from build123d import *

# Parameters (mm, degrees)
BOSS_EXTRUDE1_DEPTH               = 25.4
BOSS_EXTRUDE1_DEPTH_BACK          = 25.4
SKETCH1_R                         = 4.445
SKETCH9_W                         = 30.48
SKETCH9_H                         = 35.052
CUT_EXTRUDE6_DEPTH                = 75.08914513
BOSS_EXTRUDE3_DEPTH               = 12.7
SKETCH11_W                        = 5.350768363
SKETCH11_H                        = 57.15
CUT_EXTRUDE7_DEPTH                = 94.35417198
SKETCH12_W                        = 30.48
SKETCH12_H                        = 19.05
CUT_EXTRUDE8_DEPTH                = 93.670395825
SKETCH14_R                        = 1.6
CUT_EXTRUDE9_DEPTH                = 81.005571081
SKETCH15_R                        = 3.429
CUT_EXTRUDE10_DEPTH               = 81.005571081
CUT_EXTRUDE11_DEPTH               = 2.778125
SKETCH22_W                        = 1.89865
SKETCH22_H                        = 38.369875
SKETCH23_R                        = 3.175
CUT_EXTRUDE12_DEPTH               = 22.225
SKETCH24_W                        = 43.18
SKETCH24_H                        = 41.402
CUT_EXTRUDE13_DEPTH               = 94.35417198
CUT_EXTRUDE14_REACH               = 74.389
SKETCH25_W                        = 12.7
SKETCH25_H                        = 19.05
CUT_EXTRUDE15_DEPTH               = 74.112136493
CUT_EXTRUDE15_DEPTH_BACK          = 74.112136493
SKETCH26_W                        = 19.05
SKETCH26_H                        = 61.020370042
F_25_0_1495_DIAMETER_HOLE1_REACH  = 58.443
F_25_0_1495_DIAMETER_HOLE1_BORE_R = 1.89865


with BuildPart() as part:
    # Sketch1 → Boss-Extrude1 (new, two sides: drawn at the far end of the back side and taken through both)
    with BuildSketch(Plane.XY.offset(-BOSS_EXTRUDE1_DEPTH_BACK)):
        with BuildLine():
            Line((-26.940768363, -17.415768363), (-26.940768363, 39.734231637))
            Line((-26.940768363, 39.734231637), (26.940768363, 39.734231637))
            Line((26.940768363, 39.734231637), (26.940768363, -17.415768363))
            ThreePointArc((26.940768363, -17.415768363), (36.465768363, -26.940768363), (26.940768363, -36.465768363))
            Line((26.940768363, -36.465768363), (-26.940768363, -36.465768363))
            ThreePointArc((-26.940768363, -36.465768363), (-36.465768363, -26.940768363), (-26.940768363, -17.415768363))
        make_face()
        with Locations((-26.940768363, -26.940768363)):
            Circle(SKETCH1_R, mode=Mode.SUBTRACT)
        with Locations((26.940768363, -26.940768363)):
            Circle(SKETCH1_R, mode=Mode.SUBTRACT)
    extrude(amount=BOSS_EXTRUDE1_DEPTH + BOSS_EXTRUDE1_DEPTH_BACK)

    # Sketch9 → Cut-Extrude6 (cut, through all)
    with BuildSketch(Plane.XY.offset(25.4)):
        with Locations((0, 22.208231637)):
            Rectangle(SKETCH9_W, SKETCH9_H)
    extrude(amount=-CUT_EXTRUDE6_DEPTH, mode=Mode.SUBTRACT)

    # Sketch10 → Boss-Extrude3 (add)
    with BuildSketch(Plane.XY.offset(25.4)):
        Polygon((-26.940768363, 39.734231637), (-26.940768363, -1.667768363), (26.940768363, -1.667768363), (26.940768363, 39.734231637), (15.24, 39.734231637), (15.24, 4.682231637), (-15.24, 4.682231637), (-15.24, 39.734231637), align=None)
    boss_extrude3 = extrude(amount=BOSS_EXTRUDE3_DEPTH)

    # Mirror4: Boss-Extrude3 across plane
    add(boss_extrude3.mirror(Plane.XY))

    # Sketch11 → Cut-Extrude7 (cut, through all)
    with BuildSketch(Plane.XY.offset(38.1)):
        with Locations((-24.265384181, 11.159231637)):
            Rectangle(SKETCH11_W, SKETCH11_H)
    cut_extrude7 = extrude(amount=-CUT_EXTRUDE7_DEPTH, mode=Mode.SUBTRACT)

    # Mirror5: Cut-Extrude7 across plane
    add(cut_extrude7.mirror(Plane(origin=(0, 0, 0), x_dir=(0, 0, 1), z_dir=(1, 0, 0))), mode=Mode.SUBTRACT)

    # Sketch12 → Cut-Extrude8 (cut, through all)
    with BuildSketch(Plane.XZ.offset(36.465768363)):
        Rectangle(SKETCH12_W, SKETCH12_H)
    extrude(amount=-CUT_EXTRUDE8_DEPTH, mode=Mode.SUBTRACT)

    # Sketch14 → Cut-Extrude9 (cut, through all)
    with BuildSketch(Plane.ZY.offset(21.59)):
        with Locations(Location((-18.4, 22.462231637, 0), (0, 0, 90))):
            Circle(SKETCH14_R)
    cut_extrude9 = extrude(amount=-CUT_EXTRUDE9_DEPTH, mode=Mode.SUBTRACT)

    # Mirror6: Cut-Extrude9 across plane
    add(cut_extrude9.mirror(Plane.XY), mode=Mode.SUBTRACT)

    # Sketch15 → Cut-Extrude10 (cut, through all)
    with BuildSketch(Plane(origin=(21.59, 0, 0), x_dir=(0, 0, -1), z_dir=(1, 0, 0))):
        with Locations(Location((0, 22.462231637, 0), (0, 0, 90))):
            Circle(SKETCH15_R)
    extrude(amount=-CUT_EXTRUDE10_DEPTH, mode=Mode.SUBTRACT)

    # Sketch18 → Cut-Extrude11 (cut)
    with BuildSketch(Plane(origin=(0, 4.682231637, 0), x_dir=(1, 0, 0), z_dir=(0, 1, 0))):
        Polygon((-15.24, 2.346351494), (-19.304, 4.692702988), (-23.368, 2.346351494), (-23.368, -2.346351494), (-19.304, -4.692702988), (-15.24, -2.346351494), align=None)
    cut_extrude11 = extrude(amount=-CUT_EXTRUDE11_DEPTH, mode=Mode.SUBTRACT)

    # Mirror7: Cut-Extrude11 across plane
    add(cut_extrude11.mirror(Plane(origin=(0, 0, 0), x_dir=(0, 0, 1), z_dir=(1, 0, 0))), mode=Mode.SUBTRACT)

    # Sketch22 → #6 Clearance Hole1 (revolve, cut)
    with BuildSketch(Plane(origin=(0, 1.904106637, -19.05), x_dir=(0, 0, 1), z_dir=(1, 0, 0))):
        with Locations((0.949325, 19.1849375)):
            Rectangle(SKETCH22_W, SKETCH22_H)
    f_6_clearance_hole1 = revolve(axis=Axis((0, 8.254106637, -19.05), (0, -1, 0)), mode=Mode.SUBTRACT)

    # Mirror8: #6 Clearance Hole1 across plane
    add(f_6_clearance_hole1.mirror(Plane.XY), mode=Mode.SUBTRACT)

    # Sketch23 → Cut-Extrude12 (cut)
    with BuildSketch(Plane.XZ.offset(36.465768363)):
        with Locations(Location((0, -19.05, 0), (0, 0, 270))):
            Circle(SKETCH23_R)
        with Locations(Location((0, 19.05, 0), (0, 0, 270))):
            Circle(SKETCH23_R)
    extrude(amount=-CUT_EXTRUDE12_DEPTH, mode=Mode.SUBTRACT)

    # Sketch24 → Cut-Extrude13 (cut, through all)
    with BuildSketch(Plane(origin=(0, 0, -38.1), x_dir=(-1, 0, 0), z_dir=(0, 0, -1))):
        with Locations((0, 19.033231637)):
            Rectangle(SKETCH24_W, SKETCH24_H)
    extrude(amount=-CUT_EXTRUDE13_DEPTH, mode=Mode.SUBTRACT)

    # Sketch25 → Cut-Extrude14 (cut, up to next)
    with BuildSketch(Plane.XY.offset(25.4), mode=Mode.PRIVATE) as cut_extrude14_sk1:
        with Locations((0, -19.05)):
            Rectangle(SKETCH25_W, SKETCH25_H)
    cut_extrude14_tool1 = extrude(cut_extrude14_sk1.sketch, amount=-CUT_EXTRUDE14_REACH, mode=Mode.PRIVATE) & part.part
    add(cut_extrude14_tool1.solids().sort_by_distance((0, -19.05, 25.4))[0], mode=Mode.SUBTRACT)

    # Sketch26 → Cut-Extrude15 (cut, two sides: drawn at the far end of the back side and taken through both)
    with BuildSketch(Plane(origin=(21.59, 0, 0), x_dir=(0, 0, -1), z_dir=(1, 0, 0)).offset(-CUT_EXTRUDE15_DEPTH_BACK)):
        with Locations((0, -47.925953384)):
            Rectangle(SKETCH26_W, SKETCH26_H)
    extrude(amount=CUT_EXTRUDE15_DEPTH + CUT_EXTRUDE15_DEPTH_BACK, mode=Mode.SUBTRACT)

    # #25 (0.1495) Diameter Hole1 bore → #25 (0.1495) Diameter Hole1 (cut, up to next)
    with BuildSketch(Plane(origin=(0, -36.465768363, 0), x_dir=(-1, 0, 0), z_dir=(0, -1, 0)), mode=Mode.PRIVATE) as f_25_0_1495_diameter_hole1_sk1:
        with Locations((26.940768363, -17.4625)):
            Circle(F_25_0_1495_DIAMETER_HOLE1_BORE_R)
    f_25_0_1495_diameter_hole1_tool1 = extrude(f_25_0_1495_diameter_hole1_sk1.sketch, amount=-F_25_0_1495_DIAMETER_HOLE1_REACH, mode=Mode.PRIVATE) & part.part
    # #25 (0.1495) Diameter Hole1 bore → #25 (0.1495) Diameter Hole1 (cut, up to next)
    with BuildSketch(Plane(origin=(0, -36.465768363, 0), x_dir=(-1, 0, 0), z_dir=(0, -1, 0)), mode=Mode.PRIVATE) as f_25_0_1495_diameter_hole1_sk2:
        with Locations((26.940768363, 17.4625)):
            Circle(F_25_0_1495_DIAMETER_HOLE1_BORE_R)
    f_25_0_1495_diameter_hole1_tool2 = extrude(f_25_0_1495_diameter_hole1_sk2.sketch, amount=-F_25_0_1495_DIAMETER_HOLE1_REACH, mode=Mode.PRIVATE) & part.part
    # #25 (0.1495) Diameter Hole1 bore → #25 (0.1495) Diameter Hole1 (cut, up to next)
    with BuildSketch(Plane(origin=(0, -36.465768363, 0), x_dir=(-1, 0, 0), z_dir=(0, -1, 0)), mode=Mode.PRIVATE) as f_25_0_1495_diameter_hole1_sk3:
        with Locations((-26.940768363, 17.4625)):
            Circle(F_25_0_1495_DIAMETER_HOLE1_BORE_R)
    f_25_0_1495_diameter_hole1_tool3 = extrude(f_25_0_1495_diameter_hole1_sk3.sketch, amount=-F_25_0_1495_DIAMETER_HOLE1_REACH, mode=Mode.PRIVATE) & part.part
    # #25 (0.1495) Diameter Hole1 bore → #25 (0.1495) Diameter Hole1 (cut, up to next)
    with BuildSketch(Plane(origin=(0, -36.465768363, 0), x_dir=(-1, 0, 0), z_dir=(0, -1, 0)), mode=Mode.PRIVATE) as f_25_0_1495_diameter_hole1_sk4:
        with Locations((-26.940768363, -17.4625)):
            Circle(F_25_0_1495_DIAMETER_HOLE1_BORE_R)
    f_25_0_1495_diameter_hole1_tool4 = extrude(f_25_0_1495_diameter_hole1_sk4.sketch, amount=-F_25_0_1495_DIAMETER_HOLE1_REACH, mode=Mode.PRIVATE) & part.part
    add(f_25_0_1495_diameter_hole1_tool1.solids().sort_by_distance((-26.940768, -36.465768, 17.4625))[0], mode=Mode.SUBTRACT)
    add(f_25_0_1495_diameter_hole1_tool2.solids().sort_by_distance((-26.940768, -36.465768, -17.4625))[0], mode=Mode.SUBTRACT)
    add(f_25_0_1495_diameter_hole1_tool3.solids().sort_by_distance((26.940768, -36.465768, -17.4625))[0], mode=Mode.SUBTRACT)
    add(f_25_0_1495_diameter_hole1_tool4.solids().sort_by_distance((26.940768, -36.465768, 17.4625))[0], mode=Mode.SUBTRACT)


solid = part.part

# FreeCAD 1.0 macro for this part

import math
import FreeCAD as App
import Part
import Sketcher
Q = App.Units.Quantity

doc = App.newDocument("Part")
body = doc.addObject("PartDesign::Body", "Body")

# Sketch on XY plane
sketch1 = doc.addObject("Sketcher::SketchObject", "Sketch")
body.addObject(sketch1)
sketch1.AttachmentSupport = (doc.XY_Plane, [""])
sketch1.MapMode = "FlatFace"
sketch1.addGeometry(Part.LineSegment(App.Vector(-26.9, 39.7, 0), App.Vector(-26.9, -17.4, 0)), False)
sketch1.addGeometry(Part.ArcOfCircle(Part.Circle(App.Vector(-26.9, -26.9, 0), App.Vector(0, 0, 1), 9.5), math.radians(90), math.radians(270)), False)
sketch1.addGeometry(Part.LineSegment(App.Vector(-26.9, -36.5, 0), App.Vector(26.9, -36.5, 0)), False)
sketch1.addGeometry(Part.ArcOfCircle(Part.Circle(App.Vector(26.9, -26.9, 0), App.Vector(0, 0, 1), 9.5), math.radians(-90), math.radians(90)), False)
sketch1.addGeometry(Part.LineSegment(App.Vector(26.9, -17.4, 0), App.Vector(26.9, 39.7, 0)), False)
sketch1.addGeometry(Part.LineSegment(App.Vector(26.9, 39.7, 0), App.Vector(-26.9, 39.7, 0)), False)
sketch1.addGeometry(Part.Circle(App.Vector(26.9, -26.9, 0), App.Vector(0, 0, 1), 4.4), False)
sketch1.addGeometry(Part.Circle(App.Vector(-26.9, -26.9, 0), App.Vector(0, 0, 1), 4.4), False)
sketch1.addConstraint(Sketcher.Constraint("Coincident", 0, 2, 1, 1))
sketch1.addConstraint(Sketcher.Constraint("Tangent", 1, 2, 2, 1))
sketch1.addConstraint(Sketcher.Constraint("Tangent", 2, 2, 3, 1))
sketch1.addConstraint(Sketcher.Constraint("Coincident", 3, 2, 4, 1))
sketch1.addConstraint(Sketcher.Constraint("Coincident", 4, 2, 5, 1))
sketch1.addConstraint(Sketcher.Constraint("Coincident", 5, 2, 0, 1))
sketch1.addConstraint(Sketcher.Constraint("Vertical", 0))
sketch1.addConstraint(Sketcher.Constraint("Horizontal", 2))
sketch1.addConstraint(Sketcher.Constraint("Vertical", 4))
sketch1.addConstraint(Sketcher.Constraint("Horizontal", 5))
sketch1.addConstraint(Sketcher.Constraint("Coincident", 6, 3, 3, 3))
sketch1.addConstraint(Sketcher.Constraint("Coincident", 7, 3, 1, 3))
sketch1.addConstraint(Sketcher.Constraint("Equal", 1, 3))
sketch1.addConstraint(Sketcher.Constraint("Equal", 6, 7))
sketch1.addConstraint(Sketcher.Constraint("Vertical", 7, 3, 0, 2))
sketch1.addConstraint(Sketcher.Constraint("Vertical", 2, 2, 3, 2))
sketch1.addConstraint(Sketcher.Constraint("Diameter", 6, Q("0.35 in")))
sketch1.addConstraint(Sketcher.Constraint("Radius", 1, Q("0.375 in")))
sketch1.addConstraint(Sketcher.Constraint("DistanceY", 2, 2, 4, 2, Q("3 in")))
sketch1.addConstraint(Sketcher.Constraint("DistanceX", 2, 1, 2, 2, Q("53.881537 mm")))
sketch1.addConstraint(Sketcher.Constraint("DistanceX", 1, 3, -1, 1, Q("26.940768 mm")))
sketch1.addConstraint(Sketcher.Constraint("DistanceY", 1, 3, -1, 1, Q("26.940768 mm")))
pad1 = doc.addObject("PartDesign::Pad", "Pad")
body.addObject(pad1)
pad1.Profile = sketch1
pad1.Type = "TwoLengths"
pad1.Length = Q("1 in")
pad1.Length2 = Q("1 in")

# Sketch on XY plane
sketch2 = doc.addObject("Sketcher::SketchObject", "Sketch001")
body.addObject(sketch2)
sketch2.AttachmentSupport = (doc.XY_Plane, [""])
sketch2.MapMode = "FlatFace"
sketch2.AttachmentOffset = App.Placement(App.Vector(0, 0, 1 * 25.4), App.Rotation())
sketch2.addGeometry(Part.LineSegment(App.Vector(-15, 40, 0), App.Vector(-15, 5, 0)), False)
sketch2.addGeometry(Part.LineSegment(App.Vector(-15, 5, 0), App.Vector(15, 5, 0)), False)
sketch2.addGeometry(Part.LineSegment(App.Vector(15, 5, 0), App.Vector(15, 40, 0)), False)
sketch2.addGeometry(Part.LineSegment(App.Vector(15, 40, 0), App.Vector(-15, 40, 0)), False)
sketch2.addConstraint(Sketcher.Constraint("Coincident", 0, 2, 1, 1))
sketch2.addConstraint(Sketcher.Constraint("Coincident", 1, 2, 2, 1))
sketch2.addConstraint(Sketcher.Constraint("Coincident", 2, 2, 3, 1))
sketch2.addConstraint(Sketcher.Constraint("Coincident", 3, 2, 0, 1))
sketch2.addConstraint(Sketcher.Constraint("Vertical", 0))
sketch2.addConstraint(Sketcher.Constraint("Horizontal", 1))
sketch2.addConstraint(Sketcher.Constraint("Vertical", 2))
sketch2.addConstraint(Sketcher.Constraint("Horizontal", 3))
sketch2.addConstraint(Sketcher.Constraint("DistanceX", 1, 1, 1, 2, Q("1.2 in")))
sketch2.addConstraint(Sketcher.Constraint("DistanceY", 0, 2, 0, 1, Q("1.38 in")))
sketch2.addConstraint(Sketcher.Constraint("DistanceX", 0, 2, -1, 1, Q("0.6 in")))
sketch2.addConstraint(Sketcher.Constraint("DistanceY", -1, 1, 0, 2, Q("4.682232 mm")))
pocket1 = doc.addObject("PartDesign::Pocket", "Pocket")
body.addObject(pocket1)
pocket1.Profile = sketch2
pocket1.Type = "ThroughAll"

# Sketch on XY plane
sketch3 = doc.addObject("Sketcher::SketchObject", "Sketch002")
body.addObject(sketch3)
sketch3.AttachmentSupport = (doc.XY_Plane, [""])
sketch3.MapMode = "FlatFace"
sketch3.AttachmentOffset = App.Placement(App.Vector(0, 0, 1 * 25.4), App.Rotation())
sketch3.addGeometry(Part.LineSegment(App.Vector(-27, 40, 0), App.Vector(-27, -2, 0)), False)
sketch3.addGeometry(Part.LineSegment(App.Vector(-27, -2, 0), App.Vector(27, -2, 0)), False)
sketch3.addGeometry(Part.LineSegment(App.Vector(27, -2, 0), App.Vector(27, 40, 0)), False)
sketch3.addGeometry(Part.LineSegment(App.Vector(27, 40, 0), App.Vector(15, 40, 0)), False)
sketch3.addGeometry(Part.LineSegment(App.Vector(15, 40, 0), App.Vector(15, 5, 0)), False)
sketch3.addGeometry(Part.LineSegment(App.Vector(15, 5, 0), App.Vector(-15, 5, 0)), False)
sketch3.addGeometry(Part.LineSegment(App.Vector(-15, 5, 0), App.Vector(-15, 40, 0)), False)
sketch3.addGeometry(Part.LineSegment(App.Vector(-15, 40, 0), App.Vector(-27, 40, 0)), False)
sketch3.addConstraint(Sketcher.Constraint("Coincident", 0, 2, 1, 1))
sketch3.addConstraint(Sketcher.Constraint("Coincident", 1, 2, 2, 1))
sketch3.addConstraint(Sketcher.Constraint("Coincident", 2, 2, 3, 1))
sketch3.addConstraint(Sketcher.Constraint("Coincident", 3, 2, 4, 1))
sketch3.addConstraint(Sketcher.Constraint("Coincident", 4, 2, 5, 1))
sketch3.addConstraint(Sketcher.Constraint("Coincident", 5, 2, 6, 1))
sketch3.addConstraint(Sketcher.Constraint("Coincident", 6, 2, 7, 1))
sketch3.addConstraint(Sketcher.Constraint("Coincident", 7, 2, 0, 1))
sketch3.addConstraint(Sketcher.Constraint("Vertical", 0))
sketch3.addConstraint(Sketcher.Constraint("Horizontal", 1))
sketch3.addConstraint(Sketcher.Constraint("Vertical", 2))
sketch3.addConstraint(Sketcher.Constraint("Horizontal", 3))
sketch3.addConstraint(Sketcher.Constraint("Vertical", 4))
sketch3.addConstraint(Sketcher.Constraint("Horizontal", 5))
sketch3.addConstraint(Sketcher.Constraint("Vertical", 6))
sketch3.addConstraint(Sketcher.Constraint("Horizontal", 7))
sketch3.addConstraint(Sketcher.Constraint("Symmetric", 3, 2, 6, 2, -2))
sketch3.addConstraint(Sketcher.Constraint("Equal", 3, 7))
sketch3.addConstraint(Sketcher.Constraint("DistanceX", 5, 2, 5, 1, Q("1.2 in")))
sketch3.addConstraint(Sketcher.Constraint("DistanceY", 0, 2, 0, 1, Q("1.63 in")))
sketch3.addConstraint(Sketcher.Constraint("DistanceY", 4, 2, 4, 1, Q("1.38 in")))
sketch3.addConstraint(Sketcher.Constraint("DistanceX", 3, 2, 3, 1, Q("11.700768 mm")))
sketch3.addConstraint(Sketcher.Constraint("DistanceY", 0, 2, -1, 1, Q("1.667768 mm")))
pad2 = doc.addObject("PartDesign::Pad", "Pad001")
body.addObject(pad2)
pad2.Profile = sketch3
pad2.Length = Q("0.5 in")
doc.recompute()

mirrored = doc.addObject("PartDesign::Mirrored", "Mirrored")
body.addObject(mirrored)
mirrored.Originals = [pad2]
mirrored.MirrorPlane = (doc.XY_Plane, [""])
body.Tip = mirrored

# Sketch on XY plane
sketch4 = doc.addObject("Sketcher::SketchObject", "Sketch003")
body.addObject(sketch4)
sketch4.AttachmentSupport = (doc.XY_Plane, [""])
sketch4.MapMode = "FlatFace"
sketch4.AttachmentOffset = App.Placement(App.Vector(0, 0, 1.5 * 25.4), App.Rotation())
sketch4.addGeometry(Part.LineSegment(App.Vector(-27, 40, 0), App.Vector(-27, -17, 0)), False)
sketch4.addGeometry(Part.LineSegment(App.Vector(-27, -17, 0), App.Vector(-22, -17, 0)), False)
sketch4.addGeometry(Part.LineSegment(App.Vector(-22, -17, 0), App.Vector(-22, 40, 0)), False)
sketch4.addGeometry(Part.LineSegment(App.Vector(-22, 40, 0), App.Vector(-27, 40, 0)), False)
sketch4.addConstraint(Sketcher.Constraint("Coincident", 0, 2, 1, 1))
sketch4.addConstraint(Sketcher.Constraint("Coincident", 1, 2, 2, 1))
sketch4.addConstraint(Sketcher.Constraint("Coincident", 2, 2, 3, 1))
sketch4.addConstraint(Sketcher.Constraint("Coincident", 3, 2, 0, 1))
sketch4.addConstraint(Sketcher.Constraint("Vertical", 0))
sketch4.addConstraint(Sketcher.Constraint("Horizontal", 1))
sketch4.addConstraint(Sketcher.Constraint("Vertical", 2))
sketch4.addConstraint(Sketcher.Constraint("Horizontal", 3))
sketch4.addConstraint(Sketcher.Constraint("DistanceY", 0, 2, 0, 1, Q("2.25 in")))
sketch4.addConstraint(Sketcher.Constraint("DistanceX", 1, 2, -1, 1, Q("0.85 in")))
sketch4.addConstraint(Sketcher.Constraint("DistanceX", 1, 1, 1, 2, Q("5.350768 mm")))
sketch4.addConstraint(Sketcher.Constraint("DistanceY", 0, 2, -1, 1, Q("17.415768 mm")))
pocket2 = doc.addObject("PartDesign::Pocket", "Pocket001")
body.addObject(pocket2)
pocket2.Profile = sketch4
pocket2.Type = "ThroughAll"
doc.recompute()

mirrored2 = doc.addObject("PartDesign::Mirrored", "Mirrored001")
body.addObject(mirrored2)
mirrored2.Originals = [pocket2]
mirrored2.MirrorPlane = (doc.YZ_Plane, [""])
body.Tip = mirrored2

# Sketch on XZ plane
sketch5 = doc.addObject("Sketcher::SketchObject", "Sketch004")
body.addObject(sketch5)
sketch5.AttachmentSupport = (doc.XZ_Plane, [""])
sketch5.MapMode = "FlatFace"
sketch5.AttachmentOffset = App.Placement(App.Vector(0, 0, 36.465768), App.Rotation())
sketch5.addGeometry(Part.LineSegment(App.Vector(-15, 10, 0), App.Vector(-15, -10, 0)), False)
sketch5.addGeometry(Part.LineSegment(App.Vector(-15, -10, 0), App.Vector(15, -10, 0)), False)
sketch5.addGeometry(Part.LineSegment(App.Vector(15, -10, 0), App.Vector(15, 10, 0)), False)
sketch5.addGeometry(Part.LineSegment(App.Vector(15, 10, 0), App.Vector(-15, 10, 0)), False)
sketch5.addConstraint(Sketcher.Constraint("Coincident", 0, 2, 1, 1))
sketch5.addConstraint(Sketcher.Constraint("Coincident", 1, 2, 2, 1))
sketch5.addConstraint(Sketcher.Constraint("Coincident", 2, 2, 3, 1))
sketch5.addConstraint(Sketcher.Constraint("Coincident", 3, 2, 0, 1))
sketch5.addConstraint(Sketcher.Constraint("Vertical", 0))
sketch5.addConstraint(Sketcher.Constraint("Horizontal", 1))
sketch5.addConstraint(Sketcher.Constraint("Vertical", 2))
sketch5.addConstraint(Sketcher.Constraint("Horizontal", 3))
sketch5.addConstraint(Sketcher.Constraint("Symmetric", 0, 2, 2, 2, -1, 1))
sketch5.addConstraint(Sketcher.Constraint("DistanceX", 1, 1, 1, 2, Q("1.2 in")))
sketch5.addConstraint(Sketcher.Constraint("DistanceY", 0, 2, 0, 1, Q("0.75 in")))
pocket3 = doc.addObject("PartDesign::Pocket", "Pocket002")
body.addObject(pocket3)
pocket3.Profile = sketch5
pocket3.Type = "ThroughAll"

# Sketch on YZ plane
sketch6 = doc.addObject("Sketcher::SketchObject", "Sketch005")
body.addObject(sketch6)
sketch6.AttachmentSupport = (doc.YZ_Plane, [""])
sketch6.MapMode = "FlatFace"
sketch6.AttachmentOffset = App.Placement(App.Vector(0, 0, -0.85 * 25.4), App.Rotation())
sketch6.addGeometry(Part.Circle(App.Vector(22.5, -18.4, 0), App.Vector(0, 0, 1), 1.6), False)
sketch6.addConstraint(Sketcher.Constraint("Diameter", 0, Q("3.2 mm")))
sketch6.addConstraint(Sketcher.Constraint("DistanceY", 0, 3, -1, 1, Q("18.4 mm")))
sketch6.addConstraint(Sketcher.Constraint("DistanceX", -1, 1, 0, 3, Q("22.462232 mm")))
pocket4 = doc.addObject("PartDesign::Pocket", "Pocket003")
body.addObject(pocket4)
pocket4.Profile = sketch6
pocket4.Type = "ThroughAll"
pocket4.Reversed = True
doc.recompute()

mirrored3 = doc.addObject("PartDesign::Mirrored", "Mirrored002")
body.addObject(mirrored3)
mirrored3.Originals = [pocket4]
mirrored3.MirrorPlane = (doc.XY_Plane, [""])
body.Tip = mirrored3

# Sketch on YZ plane
sketch7 = doc.addObject("Sketcher::SketchObject", "Sketch006")
body.addObject(sketch7)
sketch7.AttachmentSupport = (doc.YZ_Plane, [""])
sketch7.MapMode = "FlatFace"
sketch7.AttachmentOffset = App.Placement(App.Vector(0, 0, 0.85 * 25.4), App.Rotation())
sketch7.addGeometry(Part.Circle(App.Vector(22.5, 0, 0), App.Vector(0, 0, 1), 3.4), False)
sketch7.addConstraint(Sketcher.Constraint("PointOnObject", 0, 3, -1))
sketch7.addConstraint(Sketcher.Constraint("Diameter", 0, Q("0.27 in")))
sketch7.addConstraint(Sketcher.Constraint("DistanceX", -1, 1, 0, 3, Q("22.462232 mm")))
pocket5 = doc.addObject("PartDesign::Pocket", "Pocket004")
body.addObject(pocket5)
pocket5.Profile = sketch7
pocket5.Type = "ThroughAll"

# Sketch on XZ plane
sketch8 = doc.addObject("Sketcher::SketchObject", "Sketch007")
body.addObject(sketch8)
sketch8.AttachmentSupport = (doc.XZ_Plane, [""])
sketch8.MapMode = "FlatFace"
sketch8.AttachmentOffset = App.Placement(App.Vector(0, 0, -4.682232), App.Rotation())
sketch8.addGeometry(Part.LineSegment(App.Vector(-15.2, -2.3, 0), App.Vector(-19.3, -4.7, 0)), False)
sketch8.addGeometry(Part.LineSegment(App.Vector(-19.3, -4.7, 0), App.Vector(-23.4, -2.3, 0)), False)
sketch8.addGeometry(Part.LineSegment(App.Vector(-23.4, -2.3, 0), App.Vector(-23.4, 2.3, 0)), False)
sketch8.addGeometry(Part.LineSegment(App.Vector(-23.4, 2.3, 0), App.Vector(-19.3, 4.7, 0)), False)
sketch8.addGeometry(Part.LineSegment(App.Vector(-19.3, 4.7, 0), App.Vector(-15.2, 2.3, 0)), False)
sketch8.addGeometry(Part.LineSegment(App.Vector(-15.2, 2.3, 0), App.Vector(-15.2, -2.3, 0)), False)
sketch8.addConstraint(Sketcher.Constraint("Coincident", 0, 2, 1, 1))
sketch8.addConstraint(Sketcher.Constraint("Coincident", 1, 2, 2, 1))
sketch8.addConstraint(Sketcher.Constraint("Coincident", 2, 2, 3, 1))
sketch8.addConstraint(Sketcher.Constraint("Coincident", 3, 2, 4, 1))
sketch8.addConstraint(Sketcher.Constraint("Coincident", 4, 2, 5, 1))
sketch8.addConstraint(Sketcher.Constraint("Coincident", 5, 2, 0, 1))
sketch8.addConstraint(Sketcher.Constraint("Vertical", 2))
sketch8.addConstraint(Sketcher.Constraint("Vertical", 5))
sketch8.addConstraint(Sketcher.Constraint("Symmetric", 0, 2, 3, 2, -1))
sketch8.addConstraint(Sketcher.Constraint("Parallel", 0, 3))
sketch8.addConstraint(Sketcher.Constraint("Parallel", 1, 4))
sketch8.addConstraint(Sketcher.Constraint("Horizontal", 2, 2, 4, 2))
sketch8.addConstraint(Sketcher.Constraint("Horizontal", 1, 2, 5, 2))
sketch8.addConstraint(Sketcher.Constraint("Angle", 0, Q("-150 deg")))
sketch8.addConstraint(Sketcher.Constraint("DistanceX", 4, 2, -1, 1, Q("0.6 in")))
sketch8.addConstraint(Sketcher.Constraint("DistanceX", 0, 2, -1, 1, Q("0.76 in")))
sketch8.addConstraint(Sketcher.Constraint("DistanceY", 2, 1, 2, 2, Q("4.692703 mm")))
pocket6 = doc.addObject("PartDesign::Pocket", "Pocket005")
body.addObject(pocket6)
pocket6.Profile = sketch8
pocket6.Length = Q("0.109375 in")
pocket6.Reversed = True
doc.recompute()

mirrored4 = doc.addObject("PartDesign::Mirrored", "Mirrored003")
body.addObject(mirrored4)
mirrored4.Originals = [pocket6]
mirrored4.MirrorPlane = (doc.YZ_Plane, [""])
body.Tip = mirrored4

# Sketch on YZ plane
sketch9 = doc.addObject("Sketcher::SketchObject", "Sketch008")
body.addObject(sketch9)
sketch9.AttachmentSupport = (doc.YZ_Plane, [""])
sketch9.MapMode = "FlatFace"
sketch9.addGeometry(Part.LineSegment(App.Vector(-36.5, -19.1, 0), App.Vector(1.9, -19.1, 0)), False)
sketch9.addGeometry(Part.LineSegment(App.Vector(1.9, -19.1, 0), App.Vector(1.9, -17.2, 0)), False)
sketch9.addGeometry(Part.LineSegment(App.Vector(1.9, -17.2, 0), App.Vector(-36.5, -17.2, 0)), False)
sketch9.addGeometry(Part.LineSegment(App.Vector(-36.5, -17.2, 0), App.Vector(-36.5, -19.1, 0)), False)
sketch9.addGeometry(Part.LineSegment(App.Vector(1.9, -19.1, 0), App.Vector(-36.5, -19.1, 0)), True)  # axis
sketch9.addConstraint(Sketcher.Constraint("Coincident", 0, 2, 1, 1))
sketch9.addConstraint(Sketcher.Constraint("Coincident", 1, 2, 2, 1))
sketch9.addConstraint(Sketcher.Constraint("Coincident", 2, 2, 3, 1))
sketch9.addConstraint(Sketcher.Constraint("Coincident", 3, 2, 0, 1))
sketch9.addConstraint(Sketcher.Constraint("Horizontal", 0))
sketch9.addConstraint(Sketcher.Constraint("Vertical", 1))
sketch9.addConstraint(Sketcher.Constraint("Horizontal", 2))
sketch9.addConstraint(Sketcher.Constraint("Vertical", 3))
sketch9.addConstraint(Sketcher.Constraint("Horizontal", 4))
sketch9.addConstraint(Sketcher.Constraint("Coincident", 4, 1, 0, 2))
sketch9.addConstraint(Sketcher.Constraint("Vertical", 2, 2, 4, 2))
sketch9.addConstraint(Sketcher.Constraint("DistanceY", 0, 2, -1, 1, Q("0.75 in")))
sketch9.addConstraint(Sketcher.Constraint("DistanceY", 1, 1, 1, 2, Q("1.89865 mm")))
sketch9.addConstraint(Sketcher.Constraint("DistanceX", 0, 1, 0, 2, Q("38.369875 mm")))
sketch9.addConstraint(Sketcher.Constraint("DistanceX", 2, 2, -1, 1, Q("36.465768 mm")))
groove = doc.addObject("PartDesign::Groove", "Groove")
body.addObject(groove)
groove.Profile = sketch9
groove.ReferenceAxis = (sketch9, ["Axis0"])
groove.Angle = 360
doc.recompute()

mirrored5 = doc.addObject("PartDesign::Mirrored", "Mirrored004")
body.addObject(mirrored5)
mirrored5.Originals = [groove]
mirrored5.MirrorPlane = (doc.XY_Plane, [""])
body.Tip = mirrored5

# Sketch on XZ plane
sketch10 = doc.addObject("Sketcher::SketchObject", "Sketch009")
body.addObject(sketch10)
sketch10.AttachmentSupport = (doc.XZ_Plane, [""])
sketch10.MapMode = "FlatFace"
sketch10.AttachmentOffset = App.Placement(App.Vector(0, 0, 36.465768), App.Rotation())
sketch10.addGeometry(Part.Circle(App.Vector(0, -19.1, 0), App.Vector(0, 0, 1), 3.2), False)
sketch10.addGeometry(Part.Circle(App.Vector(0, 19.1, 0), App.Vector(0, 0, 1), 3.2), False)
sketch10.addConstraint(Sketcher.Constraint("Equal", 0, 1))
sketch10.addConstraint(Sketcher.Constraint("Symmetric", 0, 3, 1, 3, -1, 1))
sketch10.addConstraint(Sketcher.Constraint("PointOnObject", 0, 3, -2))
sketch10.addConstraint(Sketcher.Constraint("Diameter", 0, Q("0.25 in")))
sketch10.addConstraint(Sketcher.Constraint("DistanceY", 0, 3, 1, 3, Q("1.5 in")))
pocket7 = doc.addObject("PartDesign::Pocket", "Pocket006")
body.addObject(pocket7)
pocket7.Profile = sketch10
pocket7.Length = Q("0.875 in")

# Sketch on XY plane
sketch11 = doc.addObject("Sketcher::SketchObject", "Sketch010")
body.addObject(sketch11)
sketch11.AttachmentSupport = (doc.XY_Plane, [""])
sketch11.MapMode = "FlatFace"
sketch11.AttachmentOffset = App.Placement(App.Vector(0, 0, -1.5 * 25.4), App.Rotation())
sketch11.addGeometry(Part.LineSegment(App.Vector(22, 40, 0), App.Vector(22, -2, 0)), False)
sketch11.addGeometry(Part.LineSegment(App.Vector(22, -2, 0), App.Vector(-22, -2, 0)), False)
sketch11.addGeometry(Part.LineSegment(App.Vector(-22, -2, 0), App.Vector(-22, 40, 0)), False)
sketch11.addGeometry(Part.LineSegment(App.Vector(-22, 40, 0), App.Vector(22, 40, 0)), False)
sketch11.addConstraint(Sketcher.Constraint("Coincident", 0, 2, 1, 1))
sketch11.addConstraint(Sketcher.Constraint("Coincident", 1, 2, 2, 1))
sketch11.addConstraint(Sketcher.Constraint("Coincident", 2, 2, 3, 1))
sketch11.addConstraint(Sketcher.Constraint("Coincident", 3, 2, 0, 1))
sketch11.addConstraint(Sketcher.Constraint("Vertical", 0))
sketch11.addConstraint(Sketcher.Constraint("Horizontal", 1))
sketch11.addConstraint(Sketcher.Constraint("Vertical", 2))
sketch11.addConstraint(Sketcher.Constraint("Horizontal", 3))
sketch11.addConstraint(Sketcher.Constraint("DistanceX", 1, 2, 1, 1, Q("1.7 in")))
sketch11.addConstraint(Sketcher.Constraint("DistanceY", 0, 2, 0, 1, Q("1.63 in")))
sketch11.addConstraint(Sketcher.Constraint("DistanceX", -1, 1, 0, 2, Q("0.85 in")))
sketch11.addConstraint(Sketcher.Constraint("DistanceY", 0, 2, -1, 1, Q("1.667768 mm")))
pocket8 = doc.addObject("PartDesign::Pocket", "Pocket007")
body.addObject(pocket8)
pocket8.Profile = sketch11
pocket8.Type = "ThroughAll"
pocket8.Reversed = True

# Sketch on XY plane
sketch12 = doc.addObject("Sketcher::SketchObject", "Sketch011")
body.addObject(sketch12)
sketch12.AttachmentSupport = (doc.XY_Plane, [""])
sketch12.MapMode = "FlatFace"
sketch12.AttachmentOffset = App.Placement(App.Vector(0, 0, 1 * 25.4), App.Rotation())
sketch12.addGeometry(Part.LineSegment(App.Vector(-6, -10, 0), App.Vector(-6, -29, 0)), False)
sketch12.addGeometry(Part.LineSegment(App.Vector(-6, -29, 0), App.Vector(6, -29, 0)), False)
sketch12.addGeometry(Part.LineSegment(App.Vector(6, -29, 0), App.Vector(6, -10, 0)), False)
sketch12.addGeometry(Part.LineSegment(App.Vector(6, -10, 0), App.Vector(-6, -10, 0)), False)
sketch12.addConstraint(Sketcher.Constraint("Coincident", 0, 2, 1, 1))
sketch12.addConstraint(Sketcher.Constraint("Coincident", 1, 2, 2, 1))
sketch12.addConstraint(Sketcher.Constraint("Coincident", 2, 2, 3, 1))
sketch12.addConstraint(Sketcher.Constraint("Coincident", 3, 2, 0, 1))
sketch12.addConstraint(Sketcher.Constraint("Vertical", 0))
sketch12.addConstraint(Sketcher.Constraint("Horizontal", 1))
sketch12.addConstraint(Sketcher.Constraint("Vertical", 2))
sketch12.addConstraint(Sketcher.Constraint("Horizontal", 3))
sketch12.addConstraint(Sketcher.Constraint("DistanceX", 1, 1, 1, 2, Q("0.5 in")))
sketch12.addConstraint(Sketcher.Constraint("DistanceY", 0, 2, 0, 1, Q("0.75 in")))
sketch12.addConstraint(Sketcher.Constraint("DistanceX", 0, 2, -1, 1, Q("0.25 in")))
sketch12.addConstraint(Sketcher.Constraint("DistanceY", 0, 2, -1, 1, Q("1.125 in")))
pocket9 = doc.addObject("PartDesign::Pocket", "Pocket008")
body.addObject(pocket9)
pocket9.Profile = sketch12
pocket9.Length = Q("0.625 in")

# Sketch on YZ plane
sketch13 = doc.addObject("Sketcher::SketchObject", "Sketch012")
body.addObject(sketch13)
sketch13.AttachmentSupport = (doc.YZ_Plane, [""])
sketch13.MapMode = "FlatFace"
sketch13.AttachmentOffset = App.Placement(App.Vector(0, 0, 0.85 * 25.4), App.Rotation())
sketch13.addGeometry(Part.LineSegment(App.Vector(-17, 10, 0), App.Vector(-78, 10, 0)), False)
sketch13.addGeometry(Part.LineSegment(App.Vector(-78, 10, 0), App.Vector(-78, -10, 0)), False)
sketch13.addGeometry(Part.LineSegment(App.Vector(-78, -10, 0), App.Vector(-17, -10, 0)), False)
sketch13.addGeometry(Part.LineSegment(App.Vector(-17, -10, 0), App.Vector(-17, 10, 0)), False)
sketch13.addConstraint(Sketcher.Constraint("Coincident", 0, 2, 1, 1))
sketch13.addConstraint(Sketcher.Constraint("Coincident", 1, 2, 2, 1))
sketch13.addConstraint(Sketcher.Constraint("Coincident", 2, 2, 3, 1))
sketch13.addConstraint(Sketcher.Constraint("Coincident", 3, 2, 0, 1))
sketch13.addConstraint(Sketcher.Constraint("Horizontal", 0))
sketch13.addConstraint(Sketcher.Constraint("Vertical", 1))
sketch13.addConstraint(Sketcher.Constraint("Horizontal", 2))
sketch13.addConstraint(Sketcher.Constraint("Vertical", 3))
sketch13.addConstraint(Sketcher.Constraint("DistanceY", 1, 2, 1, 1, Q("0.75 in")))
sketch13.addConstraint(Sketcher.Constraint("DistanceY", -1, 1, 0, 2, Q("0.375 in")))
sketch13.addConstraint(Sketcher.Constraint("DistanceX", 0, 2, 0, 1, Q("61.02037 mm")))
sketch13.addConstraint(Sketcher.Constraint("DistanceX", 0, 2, -1, 1, Q("78.436138 mm")))
pocket10 = doc.addObject("PartDesign::Pocket", "Pocket009")
body.addObject(pocket10)
pocket10.Profile = sketch13
pocket10.Type = "ThroughAll"
pocket10.Midplane = True

# Sketch on XZ plane
sketch14 = doc.addObject("Sketcher::SketchObject", "Sketch013")
body.addObject(sketch14)
sketch14.AttachmentSupport = (doc.XZ_Plane, [""])
sketch14.MapMode = "FlatFace"
sketch14.AttachmentOffset = App.Placement(App.Vector(0, 0, 36.465768), App.Rotation())
sketch14.addGeometry(Part.Circle(App.Vector(-26.9, 17.5, 0), App.Vector(0, 0, 1), 1.9), False)
sketch14.addConstraint(Sketcher.Constraint("Diameter", 0, Q("0.1495 in")))
sketch14.addConstraint(Sketcher.Constraint("DistanceY", -1, 1, 0, 3, Q("0.6875 in")))
sketch14.addConstraint(Sketcher.Constraint("DistanceX", 0, 3, -1, 1, Q("26.940768 mm")))
pocket11 = doc.addObject("PartDesign::Pocket", "Pocket010")
body.addObject(pocket11)
pocket11.Profile = sketch14
pocket11.Length = 5.505901

# Sketch on XZ plane
sketch15 = doc.addObject("Sketcher::SketchObject", "Sketch014")
body.addObject(sketch15)
sketch15.AttachmentSupport = (doc.XZ_Plane, [""])
sketch15.MapMode = "FlatFace"
sketch15.AttachmentOffset = App.Placement(App.Vector(0, 0, 36.465768), App.Rotation())
sketch15.addGeometry(Part.Circle(App.Vector(-26.9, -17.5, 0), App.Vector(0, 0, 1), 1.9), False)
sketch15.addConstraint(Sketcher.Constraint("Diameter", 0, Q("0.1495 in")))
sketch15.addConstraint(Sketcher.Constraint("DistanceY", 0, 3, -1, 1, Q("0.6875 in")))
sketch15.addConstraint(Sketcher.Constraint("DistanceX", 0, 3, -1, 1, Q("26.940768 mm")))
pocket12 = doc.addObject("PartDesign::Pocket", "Pocket011")
body.addObject(pocket12)
pocket12.Profile = sketch15
pocket12.Type = "UpToFirst"

# Sketch on XZ plane
sketch16 = doc.addObject("Sketcher::SketchObject", "Sketch015")
body.addObject(sketch16)
sketch16.AttachmentSupport = (doc.XZ_Plane, [""])
sketch16.MapMode = "FlatFace"
sketch16.AttachmentOffset = App.Placement(App.Vector(0, 0, 36.465768), App.Rotation())
sketch16.addGeometry(Part.Circle(App.Vector(26.9, -17.5, 0), App.Vector(0, 0, 1), 1.9), False)
sketch16.addConstraint(Sketcher.Constraint("Diameter", 0, Q("0.1495 in")))
sketch16.addConstraint(Sketcher.Constraint("DistanceY", 0, 3, -1, 1, Q("0.6875 in")))
sketch16.addConstraint(Sketcher.Constraint("DistanceX", -1, 1, 0, 3, Q("26.940768 mm")))
pocket13 = doc.addObject("PartDesign::Pocket", "Pocket012")
body.addObject(pocket13)
pocket13.Profile = sketch16
pocket13.Type = "UpToFirst"

# Sketch on XZ plane
sketch17 = doc.addObject("Sketcher::SketchObject", "Sketch016")
body.addObject(sketch17)
sketch17.AttachmentSupport = (doc.XZ_Plane, [""])
sketch17.MapMode = "FlatFace"
sketch17.AttachmentOffset = App.Placement(App.Vector(0, 0, 36.465768), App.Rotation())
sketch17.addGeometry(Part.Circle(App.Vector(26.9, 17.5, 0), App.Vector(0, 0, 1), 1.9), False)
sketch17.addConstraint(Sketcher.Constraint("Diameter", 0, Q("0.1495 in")))
sketch17.addConstraint(Sketcher.Constraint("DistanceY", -1, 1, 0, 3, Q("0.6875 in")))
sketch17.addConstraint(Sketcher.Constraint("DistanceX", -1, 1, 0, 3, Q("26.940768 mm")))
pocket14 = doc.addObject("PartDesign::Pocket", "Pocket013")
body.addObject(pocket14)
pocket14.Profile = sketch17
pocket14.Length = 5.505901

doc.recompute()
